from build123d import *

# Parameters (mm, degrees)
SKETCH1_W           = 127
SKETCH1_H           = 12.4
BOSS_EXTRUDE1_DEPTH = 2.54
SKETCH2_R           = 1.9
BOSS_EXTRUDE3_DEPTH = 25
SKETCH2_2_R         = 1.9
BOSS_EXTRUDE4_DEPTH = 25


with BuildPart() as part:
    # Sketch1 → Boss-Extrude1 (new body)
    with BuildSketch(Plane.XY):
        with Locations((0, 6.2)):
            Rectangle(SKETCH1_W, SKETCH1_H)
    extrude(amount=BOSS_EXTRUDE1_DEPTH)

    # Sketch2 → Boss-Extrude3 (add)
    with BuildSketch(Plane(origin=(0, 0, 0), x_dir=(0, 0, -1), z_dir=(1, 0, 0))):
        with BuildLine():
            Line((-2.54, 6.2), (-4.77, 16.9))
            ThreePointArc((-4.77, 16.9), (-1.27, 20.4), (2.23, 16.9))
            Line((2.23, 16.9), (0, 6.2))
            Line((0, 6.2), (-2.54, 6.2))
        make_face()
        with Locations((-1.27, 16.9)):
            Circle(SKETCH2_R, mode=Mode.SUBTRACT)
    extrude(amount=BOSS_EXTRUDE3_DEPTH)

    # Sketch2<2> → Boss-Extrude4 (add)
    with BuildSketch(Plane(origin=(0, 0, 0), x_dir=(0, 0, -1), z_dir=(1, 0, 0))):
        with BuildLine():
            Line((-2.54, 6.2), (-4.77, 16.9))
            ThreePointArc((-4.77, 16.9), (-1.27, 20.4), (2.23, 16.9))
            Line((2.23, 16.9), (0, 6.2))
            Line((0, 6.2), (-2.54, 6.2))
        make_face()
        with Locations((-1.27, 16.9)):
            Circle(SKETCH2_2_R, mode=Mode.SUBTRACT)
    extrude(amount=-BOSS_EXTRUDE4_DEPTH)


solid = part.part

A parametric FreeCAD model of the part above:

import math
import FreeCAD as App
import Part
import Sketcher
from FreeCAD import Vector
Q = App.Units.Quantity

doc = App.newDocument("Part")
body = doc.addObject("PartDesign::Body", "Body")

sketch1 = doc.addObject("Sketcher::SketchObject", "Sketch")
body.addObject(sketch1)
sketch1.AttachmentSupport = (doc.XY_Plane, [""])
sketch1.MapMode = "FlatFace"
sketch1.addGeometry([
    Part.LineSegment(Vector(-64, 12, 0), Vector(-64, 0, 0)),
    Part.LineSegment(Vector(-64, 0, 0), Vector(64, 0, 0)),
    Part.LineSegment(Vector(64, 0, 0), Vector(64, 12, 0)),
    Part.LineSegment(Vector(64, 12, 0), Vector(-64, 12, 0)),
], False)
sketch1.addConstraint([
    Sketcher.Constraint("Coincident", 0, 2, 1, 1),
    Sketcher.Constraint("Coincident", 1, 2, 2, 1),
    Sketcher.Constraint("Coincident", 2, 2, 3, 1),
    Sketcher.Constraint("Coincident", 3, 2, 0, 1),
    Sketcher.Constraint("Vertical", 0),
    Sketcher.Constraint("Horizontal", 1),
    Sketcher.Constraint("Vertical", 2),
    Sketcher.Constraint("Horizontal", 3),
    Sketcher.Constraint("Symmetric", 0, 2, 1, 2, -1, 1),
    Sketcher.Constraint("DistanceX", 1, 1, 1, 2, Q("127 mm")),
    Sketcher.Constraint("DistanceY", 0, 2, 0, 1, Q("12.4 mm")),
])
pad1 = doc.addObject("PartDesign::Pad", "Pad")
body.addObject(pad1)
pad1.Profile = sketch1
pad1.Length = 2.54

sketch2 = doc.addObject("Sketcher::SketchObject", "Sketch001")
body.addObject(sketch2)
sketch2.AttachmentSupport = (doc.YZ_Plane, [""])
sketch2.MapMode = "FlatFace"
sketch2.addGeometry([
    Part.LineSegment(Vector(16.9, 4.8, 0), Vector(6.2, 2.5, 0)),
    Part.LineSegment(Vector(6.2, 2.5, 0), Vector(6.2, 0, 0)),
    Part.LineSegment(Vector(6.2, 0, 0), Vector(16.9, -2.2, 0)),
    Part.ArcOfCircle(Part.Circle(Vector(16.9, 1.3, 0), Vector(0, 0, 1), 3.5), math.radians(-90), math.radians(90)),
    Part.Circle(Vector(16.9, 1.3, 0), Vector(0, 0, 1), 1.9),
], False)
sketch2.addConstraint([
    Sketcher.Constraint("Coincident", 0, 2, 1, 1),
    Sketcher.Constraint("Coincident", 1, 2, 2, 1),
    Sketcher.Constraint("Coincident", 2, 2, 3, 1),
    Sketcher.Constraint("Coincident", 3, 2, 0, 1),
    Sketcher.Constraint("Vertical", 1),
    Sketcher.Constraint("Coincident", 4, 3, 3, 3),
    Sketcher.Constraint("PointOnObject", 1, 2, -1),
    Sketcher.Constraint("Vertical", 4, 3, 2, 2),
    Sketcher.Constraint("Vertical", 2, 2, 3, 2),
    Sketcher.Constraint("Equal", 0, 2),
    Sketcher.Constraint("Diameter", 4, Q("3.8 mm")),
    Sketcher.Constraint("Radius", 3, Q("3.5 mm")),
    Sketcher.Constraint("DistanceY", 1, 2, 1, 1, Q("2.54 mm")),
    Sketcher.Constraint("DistanceX", -1, 1, 3, 3, Q("16.9 mm")),
    Sketcher.Constraint("DistanceX", -1, 1, 0, 2, Q("6.2 mm")),
])
pad2 = doc.addObject("PartDesign::Pad", "Pad001")
body.addObject(pad2)
pad2.Profile = sketch2
pad2.Length = 25

sketch3 = doc.addObject("Sketcher::SketchObject", "Sketch002")
body.addObject(sketch3)
sketch3.AttachmentSupport = (doc.YZ_Plane, [""])
sketch3.MapMode = "FlatFace"
sketch3.addGeometry([
    Part.LineSegment(Vector(16.9, 4.8, 0), Vector(6.2, 2.5, 0)),
    Part.LineSegment(Vector(6.2, 2.5, 0), Vector(6.2, 0, 0)),
    Part.LineSegment(Vector(6.2, 0, 0), Vector(16.9, -2.2, 0)),
    Part.ArcOfCircle(Part.Circle(Vector(16.9, 1.3, 0), Vector(0, 0, 1), 3.5), math.radians(-90), math.radians(90)),
    Part.Circle(Vector(16.9, 1.3, 0), Vector(0, 0, 1), 1.9),
], False)
sketch3.addConstraint([
    Sketcher.Constraint("Coincident", 0, 2, 1, 1),
    Sketcher.Constraint("Coincident", 1, 2, 2, 1),
    Sketcher.Constraint("Coincident", 2, 2, 3, 1),
    Sketcher.Constraint("Coincident", 3, 2, 0, 1),
    Sketcher.Constraint("Vertical", 1),
    Sketcher.Constraint("Coincident", 4, 3, 3, 3),
    Sketcher.Constraint("PointOnObject", 1, 2, -1),
    Sketcher.Constraint("Vertical", 4, 3, 2, 2),
    Sketcher.Constraint("Vertical", 2, 2, 3, 2),
    Sketcher.Constraint("Equal", 0, 2),
    Sketcher.Constraint("Diameter", 4, Q("3.8 mm")),
    Sketcher.Constraint("Radius", 3, Q("3.5 mm")),
    Sketcher.Constraint("DistanceY", 1, 2, 1, 1, Q("2.54 mm")),
    Sketcher.Constraint("DistanceX", -1, 1, 3, 3, Q("16.9 mm")),
    Sketcher.Constraint("DistanceX", -1, 1, 0, 2, Q("6.2 mm")),
])
pad3 = doc.addObject("PartDesign::Pad", "Pad002")
body.addObject(pad3)
pad3.Profile = sketch3
pad3.Length = 25
pad3.Reversed = True

doc.recompute()
